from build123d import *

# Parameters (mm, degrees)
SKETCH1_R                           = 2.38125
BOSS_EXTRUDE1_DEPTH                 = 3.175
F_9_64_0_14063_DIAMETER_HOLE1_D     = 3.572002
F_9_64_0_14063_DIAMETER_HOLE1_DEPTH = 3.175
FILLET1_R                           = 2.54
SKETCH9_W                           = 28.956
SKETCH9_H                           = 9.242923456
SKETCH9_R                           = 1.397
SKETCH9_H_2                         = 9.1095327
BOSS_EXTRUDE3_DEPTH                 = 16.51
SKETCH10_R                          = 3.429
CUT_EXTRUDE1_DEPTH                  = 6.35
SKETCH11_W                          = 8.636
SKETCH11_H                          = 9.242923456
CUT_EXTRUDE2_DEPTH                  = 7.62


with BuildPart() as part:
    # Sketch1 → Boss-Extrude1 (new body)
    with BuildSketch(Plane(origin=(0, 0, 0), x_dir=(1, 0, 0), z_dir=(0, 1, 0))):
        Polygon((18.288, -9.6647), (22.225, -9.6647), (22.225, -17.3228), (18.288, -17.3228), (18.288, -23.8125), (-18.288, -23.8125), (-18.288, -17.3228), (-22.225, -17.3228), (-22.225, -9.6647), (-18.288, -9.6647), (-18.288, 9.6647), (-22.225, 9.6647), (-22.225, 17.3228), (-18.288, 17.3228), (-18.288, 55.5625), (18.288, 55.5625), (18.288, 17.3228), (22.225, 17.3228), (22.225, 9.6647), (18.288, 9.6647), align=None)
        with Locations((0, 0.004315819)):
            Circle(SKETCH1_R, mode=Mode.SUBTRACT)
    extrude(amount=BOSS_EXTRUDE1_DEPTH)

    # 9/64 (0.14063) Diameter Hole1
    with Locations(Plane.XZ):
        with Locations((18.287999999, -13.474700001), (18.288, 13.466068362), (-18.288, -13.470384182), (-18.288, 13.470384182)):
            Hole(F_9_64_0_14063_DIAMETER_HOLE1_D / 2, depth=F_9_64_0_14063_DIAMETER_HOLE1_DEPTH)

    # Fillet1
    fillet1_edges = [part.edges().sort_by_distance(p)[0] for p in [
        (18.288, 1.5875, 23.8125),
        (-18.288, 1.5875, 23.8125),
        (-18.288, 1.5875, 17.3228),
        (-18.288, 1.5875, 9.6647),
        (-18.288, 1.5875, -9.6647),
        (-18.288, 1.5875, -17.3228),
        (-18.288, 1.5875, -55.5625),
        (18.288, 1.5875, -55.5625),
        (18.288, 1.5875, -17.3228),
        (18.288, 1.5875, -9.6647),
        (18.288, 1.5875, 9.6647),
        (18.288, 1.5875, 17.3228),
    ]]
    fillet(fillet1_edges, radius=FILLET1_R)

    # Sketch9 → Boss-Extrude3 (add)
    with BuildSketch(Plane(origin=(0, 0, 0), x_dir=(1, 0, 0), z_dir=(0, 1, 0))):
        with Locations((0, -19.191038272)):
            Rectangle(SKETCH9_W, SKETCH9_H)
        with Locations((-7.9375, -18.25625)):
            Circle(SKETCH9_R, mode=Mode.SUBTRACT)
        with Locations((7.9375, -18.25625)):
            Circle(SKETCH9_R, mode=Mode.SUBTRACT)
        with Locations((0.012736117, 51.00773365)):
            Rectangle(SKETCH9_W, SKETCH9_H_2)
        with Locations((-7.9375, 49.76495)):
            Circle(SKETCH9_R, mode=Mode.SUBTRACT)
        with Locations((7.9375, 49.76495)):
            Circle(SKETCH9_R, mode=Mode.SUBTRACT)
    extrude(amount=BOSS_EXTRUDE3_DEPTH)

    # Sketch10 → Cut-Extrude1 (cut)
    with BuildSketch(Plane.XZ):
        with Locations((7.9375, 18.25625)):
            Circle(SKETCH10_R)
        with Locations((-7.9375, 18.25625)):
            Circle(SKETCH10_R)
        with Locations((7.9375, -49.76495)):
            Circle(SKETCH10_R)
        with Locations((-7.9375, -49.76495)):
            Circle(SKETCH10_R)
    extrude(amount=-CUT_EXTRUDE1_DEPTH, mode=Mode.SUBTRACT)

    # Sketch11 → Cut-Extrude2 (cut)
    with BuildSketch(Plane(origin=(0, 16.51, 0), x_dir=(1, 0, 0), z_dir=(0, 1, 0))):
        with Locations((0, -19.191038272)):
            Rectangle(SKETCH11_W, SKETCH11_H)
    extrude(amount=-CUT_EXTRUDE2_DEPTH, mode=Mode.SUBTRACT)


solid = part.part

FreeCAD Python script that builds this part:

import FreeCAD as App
import Part
import Sketcher
from FreeCAD import Vector
Q = App.Units.Quantity


def edges_at(feature, points):
    """Names of the edges that pass closest to the given points."""
    edges = feature.Shape.Edges
    near = lambda p: min(range(len(edges)), key=lambda i: edges[i].distToShape(Part.Vertex(*p))[0])
    return sorted({f"Edge{near(p) + 1}" for p in points})


def add_polygon(sketch, points):
    """Adds a closed chain of lines whose ends are joined by coincident constraints."""
    first, n = sketch.GeometryCount, len(points)
    for a, b in zip(points, points[1:] + points[:1]):
        sketch.addGeometry(Part.LineSegment(App.Vector(*a, 0), App.Vector(*b, 0)), False)
    for i in range(n):
        sketch.addConstraint(Sketcher.Constraint("Coincident", first + i, 2, first + (i + 1) % n, 1))

doc = App.newDocument("Part")
params = doc.addObject("Spreadsheet::Sheet", "Params")
for row, (alias, value) in enumerate([
    ("sketch1_diameter", "0.1875 in"),
    ("sketch1_width", "1.44 in"),
    ("sketch1_width2", "0.155 in"),
    ("sketch1_height", "0.761 in"),
    ("pad1_length", "0.125 in"),
    ("hole_diameter", "3.572002 mm"),
    ("hole_depth", "0.125 in"),
    ("fillet_radius", "0.1 in"),
    ("sketch3_diameter", "0.11 in"),
    ("sketch3_width", "1.14 in"),
    ("pad2_length", "0.65 in"),
    ("sketch4_diameter", "0.27 in"),
    ("pocket1_length", "0.25 in"),
    ("sketch5_width", "0.34 in"),
    ("pocket2_length", "0.3 in"),
], start=1):
    params.set(f"A{row}", alias)
    params.set(f"B{row}", "=" + value)
    params.setAlias(f"B{row}", alias)

body = doc.addObject("PartDesign::Body", "Body")

# Sketch on XZ plane
sketch1 = body.newObject("Sketcher::SketchObject", "Sketch")
sketch1.AttachmentSupport = (doc.getObject("XZ_Plane"), [""])
sketch1.MapMode = "FlatFace"
add_polygon(sketch1, [(22.2, 9.7), (18.3, 9.7), (18.3, -9.7), (22.2, -9.7), (22.2, -17.3), (18.3, -17.3), (18.3, -55.6), (-18.3, -55.6), (-18.3, -17.3), (-22.2, -17.3), (-22.2, -9.7), (-18.3, -9.7), (-18.3, 9.7), (-22.2, 9.7), (-22.2, 17.3), (-18.3, 17.3), (-18.3, 23.8), (18.3, 23.8), (18.3, 17.3), (22.2, 17.3)])  # lines 0-19
sketch1.addGeometry(Part.Circle(Vector(0, 0, 0), Vector(0, 0, 1), 2.4), False)  # 20
sketch1.addConstraint(Sketcher.Constraint("Horizontal", 0))
sketch1.addConstraint(Sketcher.Constraint("Vertical", 1))
sketch1.addConstraint(Sketcher.Constraint("Horizontal", 2))
sketch1.addConstraint(Sketcher.Constraint("Vertical", 3))
sketch1.addConstraint(Sketcher.Constraint("Horizontal", 4))
sketch1.addConstraint(Sketcher.Constraint("Vertical", 5))
sketch1.addConstraint(Sketcher.Constraint("Horizontal", 6))
sketch1.addConstraint(Sketcher.Constraint("Vertical", 7))
sketch1.addConstraint(Sketcher.Constraint("Horizontal", 8))
sketch1.addConstraint(Sketcher.Constraint("Vertical", 9))
sketch1.addConstraint(Sketcher.Constraint("Horizontal", 10))
sketch1.addConstraint(Sketcher.Constraint("Vertical", 11))
sketch1.addConstraint(Sketcher.Constraint("Horizontal", 12))
sketch1.addConstraint(Sketcher.Constraint("Vertical", 13))
sketch1.addConstraint(Sketcher.Constraint("Horizontal", 14))
sketch1.addConstraint(Sketcher.Constraint("Vertical", 15))
sketch1.addConstraint(Sketcher.Constraint("Horizontal", 16))
sketch1.addConstraint(Sketcher.Constraint("Vertical", 17))
sketch1.addConstraint(Sketcher.Constraint("Horizontal", 18))
sketch1.addConstraint(Sketcher.Constraint("Vertical", 19))
sketch1.addConstraint(Sketcher.Constraint("Symmetric", 0, 2, 10, 2, -1, 1))
sketch1.addConstraint(Sketcher.Constraint("Symmetric", 2, 2, 12, 2, -1, 1))
sketch1.addConstraint(Sketcher.Constraint("Symmetric", 4, 2, 14, 2, -1, 1))
sketch1.addConstraint(Sketcher.Constraint("Symmetric", 7, 2, 17, 2, -1, 1))
sketch1.addConstraint(Sketcher.Constraint("Symmetric", 4, 2, 7, 2, -2))
sketch1.addConstraint(Sketcher.Constraint("Symmetric", 2, 2, 9, 2, -2))
sketch1.addConstraint(Sketcher.Constraint("PointOnObject", 20, 3, -2))
sketch1.addConstraint(Sketcher.Constraint("Vertical", 1, 2, 4, 2))
sketch1.addConstraint(Sketcher.Constraint("Vertical", 3, 2, 18, 2))
sketch1.addConstraint(Sketcher.Constraint("Diameter", 20, Q("0.1875 in")))
sketch1.addConstraint(Sketcher.Constraint("DistanceX", 6, 2, 6, 1, Q("1.44 in")))
sketch1.addConstraint(Sketcher.Constraint("DistanceX", 0, 2, 0, 1, Q("0.155 in")))
sketch1.addConstraint(Sketcher.Constraint("DistanceY", 1, 2, 1, 1, Q("0.761 in")))
sketch1.addConstraint(Sketcher.Constraint("DistanceY", 3, 2, 3, 1, Q("0.3015 in")))
sketch1.addConstraint(Sketcher.Constraint("DistanceY", 5, 2, 5, 1, Q("1.5055 in")))
sketch1.addConstraint(Sketcher.Constraint("DistanceY", 15, 1, 15, 2, Q("0.2555 in")))
sketch1.addConstraint(Sketcher.Constraint("DistanceY", 20, 3, -1, 1, Q("0.004316 mm")))
sketch1.setExpression("Constraints[49]", "Params.sketch1_diameter")
sketch1.setExpression("Constraints[50]", "Params.sketch1_width")
sketch1.setExpression("Constraints[51]", "Params.sketch1_width2")
sketch1.setExpression("Constraints[52]", "Params.sketch1_height")
pad1 = body.newObject("PartDesign::Pad", "Pad")
pad1.Profile = sketch1
pad1.setExpression("Length", "Params.pad1_length")
pad1.Reversed = True

# Sketch on XZ plane
sketch2 = body.newObject("Sketcher::SketchObject", "Sketch001")
sketch2.AttachmentSupport = (doc.getObject("XZ_Plane"), [""])
sketch2.MapMode = "FlatFace"
sketch2.addGeometry(Part.Circle(Vector(18.3, -13.5, 0), Vector(0, 0, 1), 1.8), False)
sketch2.addGeometry(Part.Circle(Vector(18.3, 13.5, 0), Vector(0, 0, 1), 1.8), False)
sketch2.addGeometry(Part.Circle(Vector(-18.3, -13.5, 0), Vector(0, 0, 1), 1.8), False)
sketch2.addGeometry(Part.Circle(Vector(-18.3, 13.5, 0), Vector(0, 0, 1), 1.8), False)
sketch2.addConstraint(Sketcher.Constraint("Equal", 0, 1))
sketch2.addConstraint(Sketcher.Constraint("Equal", 1, 2))
sketch2.addConstraint(Sketcher.Constraint("Equal", 2, 3))
sketch2.addConstraint(Sketcher.Constraint("Symmetric", 2, 3, 3, 3, -1))
sketch2.addConstraint(Sketcher.Constraint("Vertical", 0, 3, 1, 3))
sketch2.addConstraint(Sketcher.Constraint("Diameter", 0, Q("3.572002 mm")))
sketch2.addConstraint(Sketcher.Constraint("DistanceX", -1, 1, 0, 3, Q("0.72 in")))
sketch2.addConstraint(Sketcher.Constraint("DistanceX", 2, 3, -1, 1, Q("0.72 in")))
sketch2.addConstraint(Sketcher.Constraint("DistanceY", 0, 3, -1, 1, Q("0.5305 in")))
sketch2.addConstraint(Sketcher.Constraint("DistanceY", -1, 1, 1, 3, Q("13.466068 mm")))
sketch2.addConstraint(Sketcher.Constraint("DistanceY", 2, 3, 3, 3, Q("26.940768 mm")))
doc.recompute()
hole = body.newObject("PartDesign::Hole", "Hole")
hole.Profile = sketch2
hole.ThreadType = "None"
hole.setExpression("Diameter", "Params.hole_diameter")
hole.DepthType = "Dimension"
hole.setExpression("Depth", "Params.hole_depth")
hole.DrillPoint = "Flat"
doc.recompute()

fillet = body.newObject("PartDesign::Fillet", "Fillet")
fillet.Base = (hole, edges_at(hole, [
    (18.288, 1.587, 23.812),
    (-18.288, 1.587, 23.812),
    (-18.288, 1.587, 17.323),
    (-18.288, 1.587, 9.665),
    (-18.288, 1.587, -9.665),
    (-18.288, 1.587, -17.323),
    (-18.288, 1.587, -55.562),
    (18.288, 1.587, -55.562),
    (18.288, 1.587, -17.323),
    (18.288, 1.587, -9.665),
    (18.288, 1.587, 9.665),
    (18.288, 1.587, 17.323),
]))
fillet.setExpression("Radius", "Params.fillet_radius")

# Sketch on XZ plane
sketch3 = body.newObject("Sketcher::SketchObject", "Sketch002")
sketch3.AttachmentSupport = (doc.getObject("XZ_Plane"), [""])
sketch3.MapMode = "FlatFace"
add_polygon(sketch3, [(-14.5, 14.6), (-14.5, 23.8), (14.5, 23.8), (14.5, 14.6)])  # lines 0-3
sketch3.addGeometry(Part.Circle(Vector(-7.9, 18.3, 0), Vector(0, 0, 1), 1.4), False)  # 4
sketch3.addGeometry(Part.Circle(Vector(7.9, 18.3, 0), Vector(0, 0, 1), 1.4), False)  # 5
add_polygon(sketch3, [(-14.5, -55.6), (-14.5, -46.5), (14.5, -46.5), (14.5, -55.6)])  # lines 6-9
sketch3.addGeometry(Part.Circle(Vector(-7.9, -49.8, 0), Vector(0, 0, 1), 1.4), False)  # 10
sketch3.addGeometry(Part.Circle(Vector(7.9, -49.8, 0), Vector(0, 0, 1), 1.4), False)  # 11
sketch3.addConstraint(Sketcher.Constraint("Vertical", 0))
sketch3.addConstraint(Sketcher.Constraint("Horizontal", 1))
sketch3.addConstraint(Sketcher.Constraint("Vertical", 2))
sketch3.addConstraint(Sketcher.Constraint("Horizontal", 3))
sketch3.addConstraint(Sketcher.Constraint("Vertical", 6))
sketch3.addConstraint(Sketcher.Constraint("Horizontal", 7))
sketch3.addConstraint(Sketcher.Constraint("Vertical", 8))
sketch3.addConstraint(Sketcher.Constraint("Horizontal", 9))
sketch3.addConstraint(Sketcher.Constraint("Equal", 4, 5))
sketch3.addConstraint(Sketcher.Constraint("Equal", 5, 10))
sketch3.addConstraint(Sketcher.Constraint("Equal", 10, 11))
sketch3.addConstraint(Sketcher.Constraint("Symmetric", 4, 3, 5, 3, -2))
sketch3.addConstraint(Sketcher.Constraint("Symmetric", 10, 3, 11, 3, -2))
sketch3.addConstraint(Sketcher.Constraint("Vertical", 4, 3, 10, 3))
sketch3.addConstraint(Sketcher.Constraint("Equal", 3, 7))
sketch3.addConstraint(Sketcher.Constraint("Diameter", 4, Q("0.11 in")))
sketch3.addConstraint(Sketcher.Constraint("DistanceX", 1, 1, 1, 2, Q("1.14 in")))
sketch3.addConstraint(Sketcher.Constraint("DistanceX", 0, 2, -1, 1, Q("0.57 in")))
sketch3.addConstraint(Sketcher.Constraint("DistanceX", 4, 3, -1, 1, Q("0.3125 in")))
sketch3.addConstraint(Sketcher.Constraint("DistanceY", -1, 1, 4, 3, Q("0.71875 in")))
sketch3.addConstraint(Sketcher.Constraint("DistanceY", -1, 1, 0, 2, Q("0.9375 in")))
sketch3.addConstraint(Sketcher.Constraint("DistanceY", 8, 2, -1, 1, Q("2.1875 in")))
sketch3.addConstraint(Sketcher.Constraint("DistanceY", 10, 3, 4, 3, Q("2.678 in")))
sketch3.addConstraint(Sketcher.Constraint("DistanceY", 0, 1, 0, 2, Q("9.242923 mm")))
sketch3.addConstraint(Sketcher.Constraint("DistanceY", 6, 1, 6, 2, Q("9.109533 mm")))
sketch3.addConstraint(Sketcher.Constraint("DistanceX", 6, 2, -1, 1, Q("14.465264 mm")))
sketch3.setExpression("Constraints[23]", "Params.sketch3_diameter")
sketch3.setExpression("Constraints[24]", "Params.sketch3_width")
pad2 = body.newObject("PartDesign::Pad", "Pad001")
pad2.Profile = sketch3
pad2.setExpression("Length", "Params.pad2_length")
pad2.Reversed = True

# Sketch on XZ plane
sketch4 = body.newObject("Sketcher::SketchObject", "Sketch003")
sketch4.AttachmentSupport = (doc.getObject("XZ_Plane"), [""])
sketch4.MapMode = "FlatFace"
sketch4.addGeometry(Part.Circle(Vector(7.9, 18.3, 0), Vector(0, 0, 1), 3.4), False)
sketch4.addGeometry(Part.Circle(Vector(-7.9, 18.3, 0), Vector(0, 0, 1), 3.4), False)
sketch4.addGeometry(Part.Circle(Vector(7.9, -49.8, 0), Vector(0, 0, 1), 3.4), False)
sketch4.addGeometry(Part.Circle(Vector(-7.9, -49.8, 0), Vector(0, 0, 1), 3.4), False)
sketch4.addConstraint(Sketcher.Constraint("Equal", 0, 1))
sketch4.addConstraint(Sketcher.Constraint("Equal", 1, 2))
sketch4.addConstraint(Sketcher.Constraint("Equal", 2, 3))
sketch4.addConstraint(Sketcher.Constraint("Symmetric", 0, 3, 1, 3, -2))
sketch4.addConstraint(Sketcher.Constraint("Symmetric", 2, 3, 3, 3, -2))
sketch4.addConstraint(Sketcher.Constraint("Vertical", 0, 3, 2, 3))
sketch4.addConstraint(Sketcher.Constraint("Diameter", 0, Q("0.27 in")))
sketch4.addConstraint(Sketcher.Constraint("DistanceX", -1, 1, 0, 3, Q("0.3125 in")))
sketch4.addConstraint(Sketcher.Constraint("DistanceY", -1, 1, 0, 3, Q("0.71875 in")))
sketch4.addConstraint(Sketcher.Constraint("DistanceY", 2, 3, 0, 3, Q("2.678 in")))
sketch4.setExpression("Constraints[6]", "Params.sketch4_diameter")
pocket1 = body.newObject("PartDesign::Pocket", "Pocket")
pocket1.Profile = sketch4
pocket1.setExpression("Length", "Params.pocket1_length")

# Sketch on XZ plane
sketch5 = body.newObject("Sketcher::SketchObject", "Sketch004")
sketch5.AttachmentSupport = (doc.getObject("XZ_Plane"), [""])
sketch5.MapMode = "FlatFace"
sketch5.AttachmentOffset = App.Placement(Vector(0, 0, -0.65 * 25.4), App.Rotation())
add_polygon(sketch5, [(-4, 15), (-4, 24), (4, 24), (4, 15)])  # lines 0-3
sketch5.addConstraint(Sketcher.Constraint("Vertical", 0))
sketch5.addConstraint(Sketcher.Constraint("Horizontal", 1))
sketch5.addConstraint(Sketcher.Constraint("Vertical", 2))
sketch5.addConstraint(Sketcher.Constraint("Horizontal", 3))
sketch5.addConstraint(Sketcher.Constraint("DistanceX", 1, 1, 1, 2, Q("0.34 in")))
sketch5.addConstraint(Sketcher.Constraint("DistanceX", 0, 2, -1, 1, Q("0.17 in")))
sketch5.addConstraint(Sketcher.Constraint("DistanceY", -1, 1, 0, 2, Q("0.9375 in")))
sketch5.addConstraint(Sketcher.Constraint("DistanceY", 0, 1, 0, 2, Q("9.242923 mm")))
sketch5.setExpression("Constraints[8]", "Params.sketch5_width")
pocket2 = body.newObject("PartDesign::Pocket", "Pocket001")
pocket2.Profile = sketch5
pocket2.setExpression("Length", "Params.pocket2_length")
pocket2.Reversed = True

doc.recompute()
